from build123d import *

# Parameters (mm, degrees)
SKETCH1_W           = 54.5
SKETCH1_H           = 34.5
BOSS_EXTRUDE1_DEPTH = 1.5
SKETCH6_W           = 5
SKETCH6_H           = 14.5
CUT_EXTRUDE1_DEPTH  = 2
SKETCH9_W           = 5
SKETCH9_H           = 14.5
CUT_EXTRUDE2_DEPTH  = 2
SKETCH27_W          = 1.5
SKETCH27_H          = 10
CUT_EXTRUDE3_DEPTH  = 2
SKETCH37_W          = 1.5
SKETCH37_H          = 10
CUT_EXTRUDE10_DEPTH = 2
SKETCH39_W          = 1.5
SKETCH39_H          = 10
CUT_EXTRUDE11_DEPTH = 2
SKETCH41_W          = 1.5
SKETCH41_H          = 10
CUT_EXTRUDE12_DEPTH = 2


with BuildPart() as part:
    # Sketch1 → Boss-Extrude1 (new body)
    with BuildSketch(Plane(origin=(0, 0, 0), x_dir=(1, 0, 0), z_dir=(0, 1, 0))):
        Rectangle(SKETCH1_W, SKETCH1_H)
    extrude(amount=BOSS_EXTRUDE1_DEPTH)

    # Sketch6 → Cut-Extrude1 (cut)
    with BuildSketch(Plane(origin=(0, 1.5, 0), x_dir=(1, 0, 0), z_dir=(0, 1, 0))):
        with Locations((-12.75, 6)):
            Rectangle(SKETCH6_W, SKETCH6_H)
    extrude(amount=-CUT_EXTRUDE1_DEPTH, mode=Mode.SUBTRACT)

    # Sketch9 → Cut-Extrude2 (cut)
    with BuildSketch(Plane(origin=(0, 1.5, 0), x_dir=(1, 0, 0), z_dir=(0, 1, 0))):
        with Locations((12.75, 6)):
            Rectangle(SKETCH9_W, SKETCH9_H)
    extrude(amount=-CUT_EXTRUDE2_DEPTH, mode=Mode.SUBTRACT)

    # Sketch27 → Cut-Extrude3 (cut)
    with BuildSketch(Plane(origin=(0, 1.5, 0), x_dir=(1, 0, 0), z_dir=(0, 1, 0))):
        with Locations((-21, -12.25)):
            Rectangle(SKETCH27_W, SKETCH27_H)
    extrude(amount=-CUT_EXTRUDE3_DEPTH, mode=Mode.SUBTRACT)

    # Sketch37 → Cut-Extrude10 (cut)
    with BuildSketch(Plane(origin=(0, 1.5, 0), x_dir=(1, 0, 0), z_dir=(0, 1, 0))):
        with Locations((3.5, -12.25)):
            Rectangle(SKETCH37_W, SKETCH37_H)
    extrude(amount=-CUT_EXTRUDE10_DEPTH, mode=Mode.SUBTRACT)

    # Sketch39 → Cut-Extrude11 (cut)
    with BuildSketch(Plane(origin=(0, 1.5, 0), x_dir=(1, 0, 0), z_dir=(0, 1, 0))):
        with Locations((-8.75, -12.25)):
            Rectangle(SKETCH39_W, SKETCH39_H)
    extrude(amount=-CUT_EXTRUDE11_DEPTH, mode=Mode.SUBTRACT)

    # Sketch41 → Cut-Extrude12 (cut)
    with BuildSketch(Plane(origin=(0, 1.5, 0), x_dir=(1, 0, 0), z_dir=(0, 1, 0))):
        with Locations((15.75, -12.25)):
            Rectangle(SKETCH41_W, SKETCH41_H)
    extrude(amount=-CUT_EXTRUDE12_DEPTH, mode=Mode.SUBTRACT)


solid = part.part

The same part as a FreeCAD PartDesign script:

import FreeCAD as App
import Part
import Sketcher
Q = App.Units.Quantity

doc = App.newDocument("Part")
body = doc.addObject("PartDesign::Body", "Body")

# Sketch on XZ plane
sketch1 = doc.addObject("Sketcher::SketchObject", "Sketch")
body.addObject(sketch1)
sketch1.AttachmentSupport = (doc.XZ_Plane, [""])
sketch1.MapMode = "FlatFace"
sketch1.addGeometry(Part.LineSegment(App.Vector(-27.25, -17.25, 0), App.Vector(-27.25, 17.25, 0)), False)
sketch1.addGeometry(Part.LineSegment(App.Vector(-27.25, 17.25, 0), App.Vector(27.25, 17.25, 0)), False)
sketch1.addGeometry(Part.LineSegment(App.Vector(27.25, 17.25, 0), App.Vector(27.25, -17.25, 0)), False)
sketch1.addGeometry(Part.LineSegment(App.Vector(27.25, -17.25, 0), App.Vector(-27.25, -17.25, 0)), False)
sketch1.addConstraint(Sketcher.Constraint("Coincident", 0, 2, 1, 1))
sketch1.addConstraint(Sketcher.Constraint("Coincident", 1, 2, 2, 1))
sketch1.addConstraint(Sketcher.Constraint("Coincident", 2, 2, 3, 1))
sketch1.addConstraint(Sketcher.Constraint("Coincident", 3, 2, 0, 1))
sketch1.addConstraint(Sketcher.Constraint("Vertical", 0))
sketch1.addConstraint(Sketcher.Constraint("Horizontal", 1))
sketch1.addConstraint(Sketcher.Constraint("Vertical", 2))
sketch1.addConstraint(Sketcher.Constraint("Horizontal", 3))
sketch1.addConstraint(Sketcher.Constraint("Symmetric", 0, 2, 2, 2, -1, 1))
sketch1.addConstraint(Sketcher.Constraint("DistanceX", 1, 1, 1, 2, Q("54.5 mm")))
sketch1.addConstraint(Sketcher.Constraint("DistanceY", 0, 1, 0, 2, Q("34.5 mm")))
pad1 = doc.addObject("PartDesign::Pad", "Pad")
body.addObject(pad1)
pad1.Profile = sketch1
pad1.Length = 1.5
pad1.Reversed = True

# Sketch on XZ plane
sketch2 = doc.addObject("Sketcher::SketchObject", "Sketch001")
body.addObject(sketch2)
sketch2.AttachmentSupport = (doc.XZ_Plane, [""])
sketch2.MapMode = "FlatFace"
sketch2.AttachmentOffset = App.Placement(App.Vector(0, 0, -1.5), App.Rotation())
sketch2.addGeometry(Part.LineSegment(App.Vector(-15.25, -13.25, 0), App.Vector(-15.25, 1.25, 0)), False)
sketch2.addGeometry(Part.LineSegment(App.Vector(-15.25, 1.25, 0), App.Vector(-10.25, 1.25, 0)), False)
sketch2.addGeometry(Part.LineSegment(App.Vector(-10.25, 1.25, 0), App.Vector(-10.25, -13.25, 0)), False)
sketch2.addGeometry(Part.LineSegment(App.Vector(-10.25, -13.25, 0), App.Vector(-15.25, -13.25, 0)), False)
sketch2.addConstraint(Sketcher.Constraint("Coincident", 0, 2, 1, 1))
sketch2.addConstraint(Sketcher.Constraint("Coincident", 1, 2, 2, 1))
sketch2.addConstraint(Sketcher.Constraint("Coincident", 2, 2, 3, 1))
sketch2.addConstraint(Sketcher.Constraint("Coincident", 3, 2, 0, 1))
sketch2.addConstraint(Sketcher.Constraint("Vertical", 0))
sketch2.addConstraint(Sketcher.Constraint("Horizontal", 1))
sketch2.addConstraint(Sketcher.Constraint("Vertical", 2))
sketch2.addConstraint(Sketcher.Constraint("Horizontal", 3))
sketch2.addConstraint(Sketcher.Constraint("DistanceX", 1, 1, 1, 2, Q("5 mm")))
sketch2.addConstraint(Sketcher.Constraint("DistanceY", 0, 1, 0, 2, Q("14.5 mm")))
sketch2.addConstraint(Sketcher.Constraint("DistanceX", 0, 2, -1, 1, Q("15.25 mm")))
sketch2.addConstraint(Sketcher.Constraint("DistanceY", -1, 1, 0, 2, Q("1.25 mm")))
pocket1 = doc.addObject("PartDesign::Pocket", "Pocket")
body.addObject(pocket1)
pocket1.Profile = sketch2
pocket1.Length = 2
pocket1.Reversed = True

# Sketch on XZ plane
sketch3 = doc.addObject("Sketcher::SketchObject", "Sketch002")
body.addObject(sketch3)
sketch3.AttachmentSupport = (doc.XZ_Plane, [""])
sketch3.MapMode = "FlatFace"
sketch3.AttachmentOffset = App.Placement(App.Vector(0, 0, -1.5), App.Rotation())
sketch3.addGeometry(Part.LineSegment(App.Vector(10.25, -13.25, 0), App.Vector(10.25, 1.25, 0)), False)
sketch3.addGeometry(Part.LineSegment(App.Vector(10.25, 1.25, 0), App.Vector(15.25, 1.25, 0)), False)
sketch3.addGeometry(Part.LineSegment(App.Vector(15.25, 1.25, 0), App.Vector(15.25, -13.25, 0)), False)
sketch3.addGeometry(Part.LineSegment(App.Vector(15.25, -13.25, 0), App.Vector(10.25, -13.25, 0)), False)
sketch3.addConstraint(Sketcher.Constraint("Coincident", 0, 2, 1, 1))
sketch3.addConstraint(Sketcher.Constraint("Coincident", 1, 2, 2, 1))
sketch3.addConstraint(Sketcher.Constraint("Coincident", 2, 2, 3, 1))
sketch3.addConstraint(Sketcher.Constraint("Coincident", 3, 2, 0, 1))
sketch3.addConstraint(Sketcher.Constraint("Vertical", 0))
sketch3.addConstraint(Sketcher.Constraint("Horizontal", 1))
sketch3.addConstraint(Sketcher.Constraint("Vertical", 2))
sketch3.addConstraint(Sketcher.Constraint("Horizontal", 3))
sketch3.addConstraint(Sketcher.Constraint("DistanceX", 1, 1, 1, 2, Q("5 mm")))
sketch3.addConstraint(Sketcher.Constraint("DistanceY", 0, 1, 0, 2, Q("14.5 mm")))
sketch3.addConstraint(Sketcher.Constraint("DistanceX", -1, 1, 0, 2, Q("10.25 mm")))
sketch3.addConstraint(Sketcher.Constraint("DistanceY", -1, 1, 0, 2, Q("1.25 mm")))
pocket2 = doc.addObject("PartDesign::Pocket", "Pocket001")
body.addObject(pocket2)
pocket2.Profile = sketch3
pocket2.Length = 2
pocket2.Reversed = True

# Sketch on XZ plane
sketch4 = doc.addObject("Sketcher::SketchObject", "Sketch003")
body.addObject(sketch4)
sketch4.AttachmentSupport = (doc.XZ_Plane, [""])
sketch4.MapMode = "FlatFace"
sketch4.AttachmentOffset = App.Placement(App.Vector(0, 0, -1.5), App.Rotation())
sketch4.addGeometry(Part.LineSegment(App.Vector(-21.75, 7.25, 0), App.Vector(-21.75, 17.25, 0)), False)
sketch4.addGeometry(Part.LineSegment(App.Vector(-21.75, 17.25, 0), App.Vector(-20.25, 17.25, 0)), False)
sketch4.addGeometry(Part.LineSegment(App.Vector(-20.25, 17.25, 0), App.Vector(-20.25, 7.25, 0)), False)
sketch4.addGeometry(Part.LineSegment(App.Vector(-20.25, 7.25, 0), App.Vector(-21.75, 7.25, 0)), False)
sketch4.addConstraint(Sketcher.Constraint("Coincident", 0, 2, 1, 1))
sketch4.addConstraint(Sketcher.Constraint("Coincident", 1, 2, 2, 1))
sketch4.addConstraint(Sketcher.Constraint("Coincident", 2, 2, 3, 1))
sketch4.addConstraint(Sketcher.Constraint("Coincident", 3, 2, 0, 1))
sketch4.addConstraint(Sketcher.Constraint("Vertical", 0))
sketch4.addConstraint(Sketcher.Constraint("Horizontal", 1))
sketch4.addConstraint(Sketcher.Constraint("Vertical", 2))
sketch4.addConstraint(Sketcher.Constraint("Horizontal", 3))
sketch4.addConstraint(Sketcher.Constraint("DistanceY", 0, 1, 0, 2, Q("10 mm")))
sketch4.addConstraint(Sketcher.Constraint("DistanceX", 1, 1, 1, 2, Q("1.5 mm")))
sketch4.addConstraint(Sketcher.Constraint("DistanceX", 0, 2, -1, 1, Q("21.75 mm")))
sketch4.addConstraint(Sketcher.Constraint("DistanceY", -1, 1, 0, 2, Q("17.25 mm")))
pocket3 = doc.addObject("PartDesign::Pocket", "Pocket002")
body.addObject(pocket3)
pocket3.Profile = sketch4
pocket3.Length = 2
pocket3.Reversed = True

# Sketch on XZ plane
sketch5 = doc.addObject("Sketcher::SketchObject", "Sketch004")
body.addObject(sketch5)
sketch5.AttachmentSupport = (doc.XZ_Plane, [""])
sketch5.MapMode = "FlatFace"
sketch5.AttachmentOffset = App.Placement(App.Vector(0, 0, -1.5), App.Rotation())
sketch5.addGeometry(Part.LineSegment(App.Vector(2.75, 7.25, 0), App.Vector(2.75, 17.25, 0)), False)
sketch5.addGeometry(Part.LineSegment(App.Vector(2.75, 17.25, 0), App.Vector(4.25, 17.25, 0)), False)
sketch5.addGeometry(Part.LineSegment(App.Vector(4.25, 17.25, 0), App.Vector(4.25, 7.25, 0)), False)
sketch5.addGeometry(Part.LineSegment(App.Vector(4.25, 7.25, 0), App.Vector(2.75, 7.25, 0)), False)
sketch5.addConstraint(Sketcher.Constraint("Coincident", 0, 2, 1, 1))
sketch5.addConstraint(Sketcher.Constraint("Coincident", 1, 2, 2, 1))
sketch5.addConstraint(Sketcher.Constraint("Coincident", 2, 2, 3, 1))
sketch5.addConstraint(Sketcher.Constraint("Coincident", 3, 2, 0, 1))
sketch5.addConstraint(Sketcher.Constraint("Vertical", 0))
sketch5.addConstraint(Sketcher.Constraint("Horizontal", 1))
sketch5.addConstraint(Sketcher.Constraint("Vertical", 2))
sketch5.addConstraint(Sketcher.Constraint("Horizontal", 3))
sketch5.addConstraint(Sketcher.Constraint("DistanceY", 0, 1, 0, 2, Q("10 mm")))
sketch5.addConstraint(Sketcher.Constraint("DistanceX", 1, 1, 1, 2, Q("1.5 mm")))
sketch5.addConstraint(Sketcher.Constraint("DistanceX", -1, 1, 0, 2, Q("2.75 mm")))
sketch5.addConstraint(Sketcher.Constraint("DistanceY", -1, 1, 0, 2, Q("17.25 mm")))
pocket4 = doc.addObject("PartDesign::Pocket", "Pocket003")
body.addObject(pocket4)
pocket4.Profile = sketch5
pocket4.Length = 2
pocket4.Reversed = True

# Sketch on XZ plane
sketch6 = doc.addObject("Sketcher::SketchObject", "Sketch005")
body.addObject(sketch6)
sketch6.AttachmentSupport = (doc.XZ_Plane, [""])
sketch6.MapMode = "FlatFace"
sketch6.AttachmentOffset = App.Placement(App.Vector(0, 0, -1.5), App.Rotation())
sketch6.addGeometry(Part.LineSegment(App.Vector(-9.5, 7.25, 0), App.Vector(-9.5, 17.25, 0)), False)
sketch6.addGeometry(Part.LineSegment(App.Vector(-9.5, 17.25, 0), App.Vector(-8, 17.25, 0)), False)
sketch6.addGeometry(Part.LineSegment(App.Vector(-8, 17.25, 0), App.Vector(-8, 7.25, 0)), False)
sketch6.addGeometry(Part.LineSegment(App.Vector(-8, 7.25, 0), App.Vector(-9.5, 7.25, 0)), False)
sketch6.addConstraint(Sketcher.Constraint("Coincident", 0, 2, 1, 1))
sketch6.addConstraint(Sketcher.Constraint("Coincident", 1, 2, 2, 1))
sketch6.addConstraint(Sketcher.Constraint("Coincident", 2, 2, 3, 1))
sketch6.addConstraint(Sketcher.Constraint("Coincident", 3, 2, 0, 1))
sketch6.addConstraint(Sketcher.Constraint("Vertical", 0))
sketch6.addConstraint(Sketcher.Constraint("Horizontal", 1))
sketch6.addConstraint(Sketcher.Constraint("Vertical", 2))
sketch6.addConstraint(Sketcher.Constraint("Horizontal", 3))
sketch6.addConstraint(Sketcher.Constraint("DistanceY", 0, 1, 0, 2, Q("10 mm")))
sketch6.addConstraint(Sketcher.Constraint("DistanceX", 1, 1, 1, 2, Q("1.5 mm")))
sketch6.addConstraint(Sketcher.Constraint("DistanceX", 1, 2, -1, 1, Q("8 mm")))
sketch6.addConstraint(Sketcher.Constraint("DistanceY", -1, 1, 0, 2, Q("17.25 mm")))
pocket5 = doc.addObject("PartDesign::Pocket", "Pocket004")
body.addObject(pocket5)
pocket5.Profile = sketch6
pocket5.Length = 2
pocket5.Reversed = True

# Sketch on XZ plane
sketch7 = doc.addObject("Sketcher::SketchObject", "Sketch006")
body.addObject(sketch7)
sketch7.AttachmentSupport = (doc.XZ_Plane, [""])
sketch7.MapMode = "FlatFace"
sketch7.AttachmentOffset = App.Placement(App.Vector(0, 0, -1.5), App.Rotation())
sketch7.addGeometry(Part.LineSegment(App.Vector(15, 7.25, 0), App.Vector(15, 17.25, 0)), False)
sketch7.addGeometry(Part.LineSegment(App.Vector(15, 17.25, 0), App.Vector(16.5, 17.25, 0)), False)
sketch7.addGeometry(Part.LineSegment(App.Vector(16.5, 17.25, 0), App.Vector(16.5, 7.25, 0)), False)
sketch7.addGeometry(Part.LineSegment(App.Vector(16.5, 7.25, 0), App.Vector(15, 7.25, 0)), False)
sketch7.addConstraint(Sketcher.Constraint("Coincident", 0, 2, 1, 1))
sketch7.addConstraint(Sketcher.Constraint("Coincident", 1, 2, 2, 1))
sketch7.addConstraint(Sketcher.Constraint("Coincident", 2, 2, 3, 1))
sketch7.addConstraint(Sketcher.Constraint("Coincident", 3, 2, 0, 1))
sketch7.addConstraint(Sketcher.Constraint("Vertical", 0))
sketch7.addConstraint(Sketcher.Constraint("Horizontal", 1))
sketch7.addConstraint(Sketcher.Constraint("Vertical", 2))
sketch7.addConstraint(Sketcher.Constraint("Horizontal", 3))
sketch7.addConstraint(Sketcher.Constraint("DistanceY", 0, 1, 0, 2, Q("10 mm")))
sketch7.addConstraint(Sketcher.Constraint("DistanceX", 1, 1, 1, 2, Q("1.5 mm")))
sketch7.addConstraint(Sketcher.Constraint("DistanceX", -1, 1, 0, 2, Q("15 mm")))
sketch7.addConstraint(Sketcher.Constraint("DistanceY", -1, 1, 0, 2, Q("17.25 mm")))
pocket6 = doc.addObject("PartDesign::Pocket", "Pocket005")
body.addObject(pocket6)
pocket6.Profile = sketch7
pocket6.Length = 2
pocket6.Reversed = True

doc.recompute()
